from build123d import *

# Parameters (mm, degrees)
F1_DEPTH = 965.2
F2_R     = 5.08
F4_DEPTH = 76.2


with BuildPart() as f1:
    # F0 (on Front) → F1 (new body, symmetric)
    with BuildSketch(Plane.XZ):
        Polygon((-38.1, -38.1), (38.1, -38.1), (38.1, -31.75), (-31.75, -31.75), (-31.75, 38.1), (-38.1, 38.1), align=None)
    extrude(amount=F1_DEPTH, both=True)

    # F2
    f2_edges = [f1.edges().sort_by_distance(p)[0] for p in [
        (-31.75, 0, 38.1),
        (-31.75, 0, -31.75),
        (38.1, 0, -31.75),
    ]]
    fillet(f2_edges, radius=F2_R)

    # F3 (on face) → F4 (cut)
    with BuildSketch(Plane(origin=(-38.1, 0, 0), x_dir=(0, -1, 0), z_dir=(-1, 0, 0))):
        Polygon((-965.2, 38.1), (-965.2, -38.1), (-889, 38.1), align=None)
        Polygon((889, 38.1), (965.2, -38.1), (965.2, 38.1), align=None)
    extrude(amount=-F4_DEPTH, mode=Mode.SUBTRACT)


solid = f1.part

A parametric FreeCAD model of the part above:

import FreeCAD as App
import Part
import Sketcher
from FreeCAD import Vector
Q = App.Units.Quantity


def edges_at(feature, points):
    """Names of the edges that pass closest to the given points."""
    edges = feature.Shape.Edges
    near = lambda p: min(range(len(edges)), key=lambda i: edges[i].distToShape(Part.Vertex(*p))[0])
    return sorted({f"Edge{near(p) + 1}" for p in points})


def add_polygon(sketch, points):
    """Adds a closed chain of lines whose ends are joined by coincident constraints."""
    first, n = sketch.GeometryCount, len(points)
    for a, b in zip(points, points[1:] + points[:1]):
        sketch.addGeometry(Part.LineSegment(App.Vector(*a, 0), App.Vector(*b, 0)), False)
    for i in range(n):
        sketch.addConstraint(Sketcher.Constraint("Coincident", first + i, 2, first + (i + 1) % n, 1))

doc = App.newDocument("Part")
body = doc.addObject("PartDesign::Body", "Body")

# Sketch on XZ plane
sketch1 = doc.addObject("Sketcher::SketchObject", "Sketch")
body.addObject(sketch1)
sketch1.AttachmentSupport = (doc.XZ_Plane, [""])
sketch1.MapMode = "FlatFace"
add_polygon(sketch1, [(-38, -38), (38, -38), (38, -32), (-32, -32), (-32, 38), (-38, 38)])  # lines 0-5
sketch1.addConstraint([
    Sketcher.Constraint("Horizontal", 0),
    Sketcher.Constraint("Vertical", 1),
    Sketcher.Constraint("Horizontal", 2),
    Sketcher.Constraint("Vertical", 3),
    Sketcher.Constraint("Horizontal", 4),
    Sketcher.Constraint("Vertical", 5),
    Sketcher.Constraint("Symmetric", 0, 2, 4, 2, -1, 1),
    Sketcher.Constraint("Equal", 4, 1),
    Sketcher.Constraint("Equal", 2, 3),
    Sketcher.Constraint("DistanceX", 0, 1, 0, 2, Q("3 in")),
    Sketcher.Constraint("DistanceX", 2, 2, 2, 1, Q("2.75 in")),
])
pad1 = doc.addObject("PartDesign::Pad", "Pad")
body.addObject(pad1)
pad1.Profile = sketch1
pad1.Length = Q("76 in")
pad1.Midplane = True
doc.recompute()

fillet = doc.addObject("PartDesign::Fillet", "Fillet")
body.addObject(fillet)
fillet.Base = (pad1, edges_at(pad1, [(-31.75, 0, 38.1), (-31.75, 0, -31.75), (38.1, 0, -31.75)]))
fillet.Radius = Q("0.2 in")

# Sketch on YZ plane
sketch2 = doc.addObject("Sketcher::SketchObject", "Sketch001")
body.addObject(sketch2)
sketch2.AttachmentSupport = (doc.YZ_Plane, [""])
sketch2.MapMode = "FlatFace"
sketch2.AttachmentOffset = App.Placement(Vector(0, 0, -1.5 * 25.4), App.Rotation())
add_polygon(sketch2, [(965, 38), (965, -38), (889, 38)])  # lines 0-2
add_polygon(sketch2, [(-889, 38), (-965, -38), (-965, 38)])  # lines 3-5
sketch2.addConstraint([
    Sketcher.Constraint("Vertical", 0),
    Sketcher.Constraint("Horizontal", 2),
    Sketcher.Constraint("Vertical", 4),
    Sketcher.Constraint("Horizontal", 5),
    Sketcher.Constraint("Symmetric", 2, 2, 3, 2, -1, 1),
    Sketcher.Constraint("Symmetric", 1, 2, 5, 2, -2),
    Sketcher.Constraint("Perpendicular", 1, 3),
    Sketcher.Constraint("Horizontal", 0, 2, 3, 2),
    Sketcher.Constraint("DistanceX", 2, 1, 2, 2, Q("3 in")),
    Sketcher.Constraint("DistanceX", -1, 1, 0, 2, Q("38 in")),
])
pocket1 = doc.addObject("PartDesign::Pocket", "Pocket")
body.addObject(pocket1)
pocket1.Profile = sketch2
pocket1.Length = Q("3 in")
pocket1.Reversed = True

doc.recompute()
